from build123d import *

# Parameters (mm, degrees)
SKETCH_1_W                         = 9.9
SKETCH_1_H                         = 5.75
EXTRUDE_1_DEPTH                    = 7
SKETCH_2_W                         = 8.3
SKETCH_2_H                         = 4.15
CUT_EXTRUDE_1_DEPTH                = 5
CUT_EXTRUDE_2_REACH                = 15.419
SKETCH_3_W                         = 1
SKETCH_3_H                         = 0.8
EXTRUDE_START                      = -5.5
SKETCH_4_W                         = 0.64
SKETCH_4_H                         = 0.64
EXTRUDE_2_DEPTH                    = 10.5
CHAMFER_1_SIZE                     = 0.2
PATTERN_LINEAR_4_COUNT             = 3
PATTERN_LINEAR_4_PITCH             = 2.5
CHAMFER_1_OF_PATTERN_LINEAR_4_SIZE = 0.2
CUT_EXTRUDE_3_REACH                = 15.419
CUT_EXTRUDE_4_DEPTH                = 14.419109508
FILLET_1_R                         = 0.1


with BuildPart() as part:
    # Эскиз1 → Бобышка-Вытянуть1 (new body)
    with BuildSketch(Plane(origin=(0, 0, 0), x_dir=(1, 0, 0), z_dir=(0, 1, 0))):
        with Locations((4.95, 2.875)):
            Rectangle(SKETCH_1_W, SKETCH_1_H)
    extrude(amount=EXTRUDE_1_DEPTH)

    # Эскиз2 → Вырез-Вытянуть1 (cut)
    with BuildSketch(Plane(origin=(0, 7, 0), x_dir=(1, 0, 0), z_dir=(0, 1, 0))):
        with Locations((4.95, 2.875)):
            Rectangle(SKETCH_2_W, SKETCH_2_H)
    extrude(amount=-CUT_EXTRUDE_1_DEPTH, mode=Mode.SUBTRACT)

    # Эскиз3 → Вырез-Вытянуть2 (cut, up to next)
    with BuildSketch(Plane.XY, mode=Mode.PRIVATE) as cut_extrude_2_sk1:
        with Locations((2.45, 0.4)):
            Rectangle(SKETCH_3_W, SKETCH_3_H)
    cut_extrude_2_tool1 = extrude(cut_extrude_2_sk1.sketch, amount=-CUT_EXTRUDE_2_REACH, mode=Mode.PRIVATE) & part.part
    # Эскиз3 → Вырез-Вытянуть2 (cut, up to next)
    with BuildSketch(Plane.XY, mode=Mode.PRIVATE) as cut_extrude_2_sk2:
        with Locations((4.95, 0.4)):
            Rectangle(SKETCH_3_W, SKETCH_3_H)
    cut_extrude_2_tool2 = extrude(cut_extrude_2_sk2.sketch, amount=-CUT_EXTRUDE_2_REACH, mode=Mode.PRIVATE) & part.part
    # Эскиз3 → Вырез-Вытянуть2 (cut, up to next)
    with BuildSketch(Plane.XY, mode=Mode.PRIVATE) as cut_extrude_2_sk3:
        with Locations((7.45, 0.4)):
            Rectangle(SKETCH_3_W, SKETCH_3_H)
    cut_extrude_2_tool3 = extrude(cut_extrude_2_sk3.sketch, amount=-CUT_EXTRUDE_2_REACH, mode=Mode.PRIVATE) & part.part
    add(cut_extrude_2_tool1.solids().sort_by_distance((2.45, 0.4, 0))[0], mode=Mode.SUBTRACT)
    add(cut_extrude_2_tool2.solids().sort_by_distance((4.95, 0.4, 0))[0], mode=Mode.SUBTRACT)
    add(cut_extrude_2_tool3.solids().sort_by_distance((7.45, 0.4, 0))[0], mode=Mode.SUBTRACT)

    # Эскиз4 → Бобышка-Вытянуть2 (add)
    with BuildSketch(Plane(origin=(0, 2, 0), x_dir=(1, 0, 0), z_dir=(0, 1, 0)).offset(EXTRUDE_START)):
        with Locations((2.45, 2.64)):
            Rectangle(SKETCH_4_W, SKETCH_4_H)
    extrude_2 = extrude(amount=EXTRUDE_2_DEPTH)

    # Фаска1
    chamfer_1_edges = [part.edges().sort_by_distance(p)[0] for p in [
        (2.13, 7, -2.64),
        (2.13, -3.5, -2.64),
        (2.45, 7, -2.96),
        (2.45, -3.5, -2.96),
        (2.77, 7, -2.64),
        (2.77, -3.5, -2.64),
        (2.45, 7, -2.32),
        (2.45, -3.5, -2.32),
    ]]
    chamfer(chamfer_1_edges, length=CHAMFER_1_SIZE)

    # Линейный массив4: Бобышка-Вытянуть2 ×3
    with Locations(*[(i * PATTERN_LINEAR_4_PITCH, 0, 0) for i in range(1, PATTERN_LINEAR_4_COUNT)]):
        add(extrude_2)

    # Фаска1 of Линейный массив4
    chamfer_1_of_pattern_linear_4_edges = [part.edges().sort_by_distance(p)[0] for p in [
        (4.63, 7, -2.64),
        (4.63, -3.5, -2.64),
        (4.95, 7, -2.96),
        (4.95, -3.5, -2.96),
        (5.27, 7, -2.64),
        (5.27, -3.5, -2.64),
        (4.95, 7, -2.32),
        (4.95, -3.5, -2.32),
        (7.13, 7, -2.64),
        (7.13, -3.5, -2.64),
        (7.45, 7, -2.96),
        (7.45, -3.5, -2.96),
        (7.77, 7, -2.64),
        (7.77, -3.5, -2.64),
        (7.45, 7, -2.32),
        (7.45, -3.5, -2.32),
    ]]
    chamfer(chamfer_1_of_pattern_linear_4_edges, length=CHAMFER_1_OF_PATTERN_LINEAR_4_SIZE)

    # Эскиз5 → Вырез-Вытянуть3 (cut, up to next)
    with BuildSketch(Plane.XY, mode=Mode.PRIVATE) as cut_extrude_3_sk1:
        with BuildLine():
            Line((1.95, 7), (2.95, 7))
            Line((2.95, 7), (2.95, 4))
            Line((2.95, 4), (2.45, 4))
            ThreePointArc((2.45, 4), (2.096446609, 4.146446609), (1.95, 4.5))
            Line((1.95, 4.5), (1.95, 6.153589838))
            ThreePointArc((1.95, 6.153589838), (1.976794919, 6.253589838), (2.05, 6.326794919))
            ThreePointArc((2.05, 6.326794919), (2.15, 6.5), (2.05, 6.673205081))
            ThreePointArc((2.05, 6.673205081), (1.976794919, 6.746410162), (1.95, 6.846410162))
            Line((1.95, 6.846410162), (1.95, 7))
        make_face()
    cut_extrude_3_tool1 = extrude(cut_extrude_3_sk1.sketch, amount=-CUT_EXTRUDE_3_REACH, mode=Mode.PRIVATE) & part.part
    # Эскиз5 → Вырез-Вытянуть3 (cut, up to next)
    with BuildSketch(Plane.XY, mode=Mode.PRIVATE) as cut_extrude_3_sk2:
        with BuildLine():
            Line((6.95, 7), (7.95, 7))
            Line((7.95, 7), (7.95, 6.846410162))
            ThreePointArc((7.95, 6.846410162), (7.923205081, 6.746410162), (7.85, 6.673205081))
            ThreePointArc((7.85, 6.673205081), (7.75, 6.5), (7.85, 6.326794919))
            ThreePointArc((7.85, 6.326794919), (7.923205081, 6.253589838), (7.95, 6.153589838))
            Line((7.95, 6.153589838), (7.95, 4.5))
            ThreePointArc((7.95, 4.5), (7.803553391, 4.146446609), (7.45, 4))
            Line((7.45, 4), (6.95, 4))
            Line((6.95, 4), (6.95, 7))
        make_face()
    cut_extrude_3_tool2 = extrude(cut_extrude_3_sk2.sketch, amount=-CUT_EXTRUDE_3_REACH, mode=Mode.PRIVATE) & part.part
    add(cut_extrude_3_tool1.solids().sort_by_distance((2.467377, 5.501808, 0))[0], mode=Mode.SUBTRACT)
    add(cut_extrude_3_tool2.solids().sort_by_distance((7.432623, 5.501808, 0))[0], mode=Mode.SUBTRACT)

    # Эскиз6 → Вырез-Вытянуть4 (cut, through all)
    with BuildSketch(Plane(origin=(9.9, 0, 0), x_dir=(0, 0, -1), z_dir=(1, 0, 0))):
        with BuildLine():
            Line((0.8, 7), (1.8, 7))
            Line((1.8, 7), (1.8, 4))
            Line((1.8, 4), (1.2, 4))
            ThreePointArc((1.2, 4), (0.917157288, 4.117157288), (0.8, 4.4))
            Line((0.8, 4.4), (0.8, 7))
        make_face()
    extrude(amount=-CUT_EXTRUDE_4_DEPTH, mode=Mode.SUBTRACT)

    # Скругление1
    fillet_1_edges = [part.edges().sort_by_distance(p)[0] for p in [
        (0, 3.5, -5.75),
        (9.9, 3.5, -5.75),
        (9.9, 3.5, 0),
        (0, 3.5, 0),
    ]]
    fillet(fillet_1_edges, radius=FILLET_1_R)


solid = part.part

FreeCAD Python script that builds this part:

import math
import FreeCAD as App
import Part
import Sketcher
from FreeCAD import Vector
Q = App.Units.Quantity


def edges_at(feature, points):
    """Names of the edges that pass closest to the given points."""
    edges = feature.Shape.Edges
    near = lambda p: min(range(len(edges)), key=lambda i: edges[i].distToShape(Part.Vertex(*p))[0])
    return sorted({f"Edge{near(p) + 1}" for p in points})

doc = App.newDocument("Part")
body = doc.addObject("PartDesign::Body", "Body")

sketch1 = doc.addObject("Sketcher::SketchObject", "Sketch")
body.addObject(sketch1)
sketch1.AttachmentSupport = (doc.XZ_Plane, [""])
sketch1.MapMode = "FlatFace"
sketch1.addGeometry(Part.LineSegment(Vector(0, -6, 0), Vector(0, 0, 0)), False)
sketch1.addGeometry(Part.LineSegment(Vector(0, 0, 0), Vector(10, 0, 0)), False)
sketch1.addGeometry(Part.LineSegment(Vector(10, 0, 0), Vector(10, -6, 0)), False)
sketch1.addGeometry(Part.LineSegment(Vector(10, -6, 0), Vector(0, -6, 0)), False)
sketch1.addConstraint(Sketcher.Constraint("Coincident", 0, 2, 1, 1))
sketch1.addConstraint(Sketcher.Constraint("Coincident", 1, 2, 2, 1))
sketch1.addConstraint(Sketcher.Constraint("Coincident", 2, 2, 3, 1))
sketch1.addConstraint(Sketcher.Constraint("Coincident", 3, 2, 0, 1))
sketch1.addConstraint(Sketcher.Constraint("Vertical", 0))
sketch1.addConstraint(Sketcher.Constraint("Horizontal", 1))
sketch1.addConstraint(Sketcher.Constraint("Vertical", 2))
sketch1.addConstraint(Sketcher.Constraint("Horizontal", 3))
sketch1.addConstraint(Sketcher.Constraint("Coincident", 0, 2, -1, 1))
sketch1.addConstraint(Sketcher.Constraint("DistanceX", 1, 1, 1, 2, Q("9.9 mm")))
sketch1.addConstraint(Sketcher.Constraint("DistanceY", 0, 1, 0, 2, Q("5.75 mm")))
pad1 = doc.addObject("PartDesign::Pad", "Pad")
body.addObject(pad1)
pad1.Profile = sketch1
pad1.Length = 7
pad1.Reversed = True

sketch2 = doc.addObject("Sketcher::SketchObject", "Sketch001")
body.addObject(sketch2)
sketch2.AttachmentSupport = (doc.XZ_Plane, [""])
sketch2.MapMode = "FlatFace"
sketch2.AttachmentOffset = App.Placement(Vector(0, 0, -7), App.Rotation())
sketch2.addGeometry(Part.LineSegment(Vector(0.8, -5, 0), Vector(0.8, -0.8, 0)), False)
sketch2.addGeometry(Part.LineSegment(Vector(0.8, -0.8, 0), Vector(9.1, -0.8, 0)), False)
sketch2.addGeometry(Part.LineSegment(Vector(9.1, -0.8, 0), Vector(9.1, -5, 0)), False)
sketch2.addGeometry(Part.LineSegment(Vector(9.1, -5, 0), Vector(0.8, -5, 0)), False)
sketch2.addConstraint(Sketcher.Constraint("Coincident", 0, 2, 1, 1))
sketch2.addConstraint(Sketcher.Constraint("Coincident", 1, 2, 2, 1))
sketch2.addConstraint(Sketcher.Constraint("Coincident", 2, 2, 3, 1))
sketch2.addConstraint(Sketcher.Constraint("Coincident", 3, 2, 0, 1))
sketch2.addConstraint(Sketcher.Constraint("Vertical", 0))
sketch2.addConstraint(Sketcher.Constraint("Horizontal", 1))
sketch2.addConstraint(Sketcher.Constraint("Vertical", 2))
sketch2.addConstraint(Sketcher.Constraint("Horizontal", 3))
sketch2.addConstraint(Sketcher.Constraint("DistanceX", 1, 1, 1, 2, Q("8.3 mm")))
sketch2.addConstraint(Sketcher.Constraint("DistanceY", 0, 1, 0, 2, Q("4.15 mm")))
sketch2.addConstraint(Sketcher.Constraint("DistanceX", -1, 1, 0, 2, Q("0.8 mm")))
sketch2.addConstraint(Sketcher.Constraint("DistanceY", 0, 2, -1, 1, Q("0.8 mm")))
pocket1 = doc.addObject("PartDesign::Pocket", "Pocket")
body.addObject(pocket1)
pocket1.Profile = sketch2
pocket1.Length = 5
pocket1.Reversed = True

sketch3 = doc.addObject("Sketcher::SketchObject", "Sketch002")
body.addObject(sketch3)
sketch3.AttachmentSupport = (doc.XY_Plane, [""])
sketch3.MapMode = "FlatFace"
sketch3.addGeometry(Part.LineSegment(Vector(1.9, 0.8, 0), Vector(1.9, 0, 0)), False)
sketch3.addGeometry(Part.LineSegment(Vector(1.9, 0, 0), Vector(3, 0, 0)), False)
sketch3.addGeometry(Part.LineSegment(Vector(3, 0, 0), Vector(3, 0.8, 0)), False)
sketch3.addGeometry(Part.LineSegment(Vector(3, 0.8, 0), Vector(1.9, 0.8, 0)), False)
sketch3.addConstraint(Sketcher.Constraint("Coincident", 0, 2, 1, 1))
sketch3.addConstraint(Sketcher.Constraint("Coincident", 1, 2, 2, 1))
sketch3.addConstraint(Sketcher.Constraint("Coincident", 2, 2, 3, 1))
sketch3.addConstraint(Sketcher.Constraint("Coincident", 3, 2, 0, 1))
sketch3.addConstraint(Sketcher.Constraint("Vertical", 0))
sketch3.addConstraint(Sketcher.Constraint("Horizontal", 1))
sketch3.addConstraint(Sketcher.Constraint("Vertical", 2))
sketch3.addConstraint(Sketcher.Constraint("Horizontal", 3))
sketch3.addConstraint(Sketcher.Constraint("PointOnObject", 0, 2, -1))
sketch3.addConstraint(Sketcher.Constraint("DistanceX", 1, 1, 1, 2, Q("1 mm")))
sketch3.addConstraint(Sketcher.Constraint("DistanceY", 0, 2, 0, 1, Q("0.8 mm")))
sketch3.addConstraint(Sketcher.Constraint("DistanceX", -1, 1, 0, 2, Q("1.95 mm")))
pocket2 = doc.addObject("PartDesign::Pocket", "Pocket001")
body.addObject(pocket2)
pocket2.Profile = sketch3
pocket2.Type = "UpToFirst"

sketch4 = doc.addObject("Sketcher::SketchObject", "Sketch003")
body.addObject(sketch4)
sketch4.AttachmentSupport = (doc.XY_Plane, [""])
sketch4.MapMode = "FlatFace"
sketch4.addGeometry(Part.LineSegment(Vector(4.5, 0.8, 0), Vector(4.5, 0, 0)), False)
sketch4.addGeometry(Part.LineSegment(Vector(4.5, 0, 0), Vector(5.5, 0, 0)), False)
sketch4.addGeometry(Part.LineSegment(Vector(5.5, 0, 0), Vector(5.5, 0.8, 0)), False)
sketch4.addGeometry(Part.LineSegment(Vector(5.5, 0.8, 0), Vector(4.5, 0.8, 0)), False)
sketch4.addConstraint(Sketcher.Constraint("Coincident", 0, 2, 1, 1))
sketch4.addConstraint(Sketcher.Constraint("Coincident", 1, 2, 2, 1))
sketch4.addConstraint(Sketcher.Constraint("Coincident", 2, 2, 3, 1))
sketch4.addConstraint(Sketcher.Constraint("Coincident", 3, 2, 0, 1))
sketch4.addConstraint(Sketcher.Constraint("Vertical", 0))
sketch4.addConstraint(Sketcher.Constraint("Horizontal", 1))
sketch4.addConstraint(Sketcher.Constraint("Vertical", 2))
sketch4.addConstraint(Sketcher.Constraint("Horizontal", 3))
sketch4.addConstraint(Sketcher.Constraint("PointOnObject", 0, 2, -1))
sketch4.addConstraint(Sketcher.Constraint("DistanceX", 1, 1, 1, 2, Q("1 mm")))
sketch4.addConstraint(Sketcher.Constraint("DistanceY", 0, 2, 0, 1, Q("0.8 mm")))
sketch4.addConstraint(Sketcher.Constraint("DistanceX", -1, 1, 0, 2, Q("4.45 mm")))
pocket3 = doc.addObject("PartDesign::Pocket", "Pocket002")
body.addObject(pocket3)
pocket3.Profile = sketch4
pocket3.Type = "UpToFirst"

sketch5 = doc.addObject("Sketcher::SketchObject", "Sketch004")
body.addObject(sketch5)
sketch5.AttachmentSupport = (doc.XY_Plane, [""])
sketch5.MapMode = "FlatFace"
sketch5.addGeometry(Part.LineSegment(Vector(7, 0.8, 0), Vector(7, 0, 0)), False)
sketch5.addGeometry(Part.LineSegment(Vector(7, 0, 0), Vector(8, 0, 0)), False)
sketch5.addGeometry(Part.LineSegment(Vector(8, 0, 0), Vector(8, 0.8, 0)), False)
sketch5.addGeometry(Part.LineSegment(Vector(8, 0.8, 0), Vector(7, 0.8, 0)), False)
sketch5.addConstraint(Sketcher.Constraint("Coincident", 0, 2, 1, 1))
sketch5.addConstraint(Sketcher.Constraint("Coincident", 1, 2, 2, 1))
sketch5.addConstraint(Sketcher.Constraint("Coincident", 2, 2, 3, 1))
sketch5.addConstraint(Sketcher.Constraint("Coincident", 3, 2, 0, 1))
sketch5.addConstraint(Sketcher.Constraint("Vertical", 0))
sketch5.addConstraint(Sketcher.Constraint("Horizontal", 1))
sketch5.addConstraint(Sketcher.Constraint("Vertical", 2))
sketch5.addConstraint(Sketcher.Constraint("Horizontal", 3))
sketch5.addConstraint(Sketcher.Constraint("PointOnObject", 0, 2, -1))
sketch5.addConstraint(Sketcher.Constraint("DistanceX", 1, 1, 1, 2, Q("1 mm")))
sketch5.addConstraint(Sketcher.Constraint("DistanceY", 0, 2, 0, 1, Q("0.8 mm")))
sketch5.addConstraint(Sketcher.Constraint("DistanceX", -1, 1, 0, 2, Q("6.95 mm")))
pocket4 = doc.addObject("PartDesign::Pocket", "Pocket003")
body.addObject(pocket4)
pocket4.Profile = sketch5
pocket4.Type = "UpToFirst"

sketch6 = doc.addObject("Sketcher::SketchObject", "Sketch005")
body.addObject(sketch6)
sketch6.AttachmentSupport = (doc.XZ_Plane, [""])
sketch6.MapMode = "FlatFace"
sketch6.AttachmentOffset = App.Placement(Vector(0, 0, 3.5), App.Rotation())
sketch6.addGeometry(Part.LineSegment(Vector(2.1, -3, 0), Vector(2.1, -2.3, 0)), False)
sketch6.addGeometry(Part.LineSegment(Vector(2.1, -2.3, 0), Vector(2.8, -2.3, 0)), False)
sketch6.addGeometry(Part.LineSegment(Vector(2.8, -2.3, 0), Vector(2.8, -3, 0)), False)
sketch6.addGeometry(Part.LineSegment(Vector(2.8, -3, 0), Vector(2.1, -3, 0)), False)
sketch6.addConstraint(Sketcher.Constraint("Coincident", 0, 2, 1, 1))
sketch6.addConstraint(Sketcher.Constraint("Coincident", 1, 2, 2, 1))
sketch6.addConstraint(Sketcher.Constraint("Coincident", 2, 2, 3, 1))
sketch6.addConstraint(Sketcher.Constraint("Coincident", 3, 2, 0, 1))
sketch6.addConstraint(Sketcher.Constraint("Vertical", 0))
sketch6.addConstraint(Sketcher.Constraint("Horizontal", 1))
sketch6.addConstraint(Sketcher.Constraint("Vertical", 2))
sketch6.addConstraint(Sketcher.Constraint("Horizontal", 3))
sketch6.addConstraint(Sketcher.Constraint("Equal", 3, 0))
sketch6.addConstraint(Sketcher.Constraint("DistanceX", 1, 1, 1, 2, Q("0.64 mm")))
sketch6.addConstraint(Sketcher.Constraint("DistanceX", -1, 1, 0, 2, Q("2.13 mm")))
sketch6.addConstraint(Sketcher.Constraint("DistanceY", 0, 2, -1, 1, Q("2.32 mm")))
pad2 = doc.addObject("PartDesign::Pad", "Pad001")
body.addObject(pad2)
pad2.Profile = sketch6
pad2.Length = 10.5
pad2.Reversed = True
doc.recompute()

chamfer = doc.addObject("PartDesign::Chamfer", "Chamfer")
body.addObject(chamfer)
chamfer.Base = (pad2, edges_at(pad2, [
    (2.13, 7, -2.64),
    (2.13, -3.5, -2.64),
    (2.45, 7, -2.96),
    (2.45, -3.5, -2.96),
    (2.77, 7, -2.64),
    (2.77, -3.5, -2.64),
    (2.45, 7, -2.32),
    (2.45, -3.5, -2.32),
]))
chamfer.Size = 0.2
doc.recompute()

linearpattern = doc.addObject("PartDesign::LinearPattern", "LinearPattern")
body.addObject(linearpattern)
linearpattern.Originals = [pad2]
linearpattern.Direction = (doc.X_Axis, [""])
linearpattern.Mode = "offset"
linearpattern.Offset = 2.5
linearpattern.Occurrences = 3
body.Tip = linearpattern
doc.recompute()

chamfer2 = doc.addObject("PartDesign::Chamfer", "Chamfer001")
body.addObject(chamfer2)
chamfer2.Base = (linearpattern, edges_at(linearpattern, [
    (4.63, 7, -2.64),
    (4.63, -3.5, -2.64),
    (4.95, 7, -2.96),
    (4.95, -3.5, -2.96),
    (5.27, 7, -2.64),
    (5.27, -3.5, -2.64),
    (4.95, 7, -2.32),
    (4.95, -3.5, -2.32),
    (7.13, 7, -2.64),
    (7.13, -3.5, -2.64),
    (7.45, 7, -2.96),
    (7.45, -3.5, -2.96),
    (7.77, 7, -2.64),
    (7.77, -3.5, -2.64),
    (7.45, 7, -2.32),
    (7.45, -3.5, -2.32),
]))
chamfer2.Size = 0.2

sketch7 = doc.addObject("Sketcher::SketchObject", "Sketch006")
body.addObject(sketch7)
sketch7.AttachmentSupport = (doc.XY_Plane, [""])
sketch7.MapMode = "FlatFace"
sketch7.addGeometry(Part.LineSegment(Vector(2.95, 7, 0), Vector(1.95, 7, 0)), False)
sketch7.addGeometry(Part.LineSegment(Vector(1.95, 7, 0), Vector(1.95, 6.85, 0)), False)
sketch7.addGeometry(Part.ArcOfCircle(Part.Circle(Vector(2.15, 6.85, 0), Vector(0, 0, 1), 0.2), math.radians(180), math.radians(240)), False)
sketch7.addGeometry(Part.ArcOfCircle(Part.Circle(Vector(1.95, 6.5, 0), Vector(0, 0, 1), 0.2), math.radians(-60), math.radians(60)), False)
sketch7.addGeometry(Part.ArcOfCircle(Part.Circle(Vector(2.15, 6.15, 0), Vector(0, 0, 1), 0.2), math.radians(120), math.radians(180)), False)
sketch7.addGeometry(Part.LineSegment(Vector(1.95, 6.15, 0), Vector(1.95, 4.5, 0)), False)
sketch7.addGeometry(Part.ArcOfCircle(Part.Circle(Vector(2.45, 4.5, 0), Vector(0, 0, 1), 0.5), math.radians(180), math.radians(270)), False)
sketch7.addGeometry(Part.LineSegment(Vector(2.45, 4, 0), Vector(2.95, 4, 0)), False)
sketch7.addGeometry(Part.LineSegment(Vector(2.95, 4, 0), Vector(2.95, 7, 0)), False)
sketch7.addConstraint(Sketcher.Constraint("Coincident", 0, 2, 1, 1))
sketch7.addConstraint(Sketcher.Constraint("Tangent", 1, 2, 2, 1))
sketch7.addConstraint(Sketcher.Constraint("Tangent", 2, 2, 3, 2))
sketch7.addConstraint(Sketcher.Constraint("Tangent", 3, 1, 4, 1))
sketch7.addConstraint(Sketcher.Constraint("Tangent", 4, 2, 5, 1))
sketch7.addConstraint(Sketcher.Constraint("Tangent", 5, 2, 6, 1))
sketch7.addConstraint(Sketcher.Constraint("Tangent", 6, 2, 7, 1))
sketch7.addConstraint(Sketcher.Constraint("Coincident", 7, 2, 8, 1))
sketch7.addConstraint(Sketcher.Constraint("Coincident", 8, 2, 0, 1))
sketch7.addConstraint(Sketcher.Constraint("Horizontal", 0))
sketch7.addConstraint(Sketcher.Constraint("Vertical", 1))
sketch7.addConstraint(Sketcher.Constraint("Vertical", 5))
sketch7.addConstraint(Sketcher.Constraint("Horizontal", 7))
sketch7.addConstraint(Sketcher.Constraint("Vertical", 8))
sketch7.addConstraint(Sketcher.Constraint("Equal", 2, 3))
sketch7.addConstraint(Sketcher.Constraint("Equal", 3, 4))
sketch7.addConstraint(Sketcher.Constraint("Vertical", 2, 3, 4, 3))
sketch7.addConstraint(Sketcher.Constraint("Vertical", 3, 3, 0, 2))
sketch7.addConstraint(Sketcher.Constraint("Radius", 2, Q("0.2 mm")))
sketch7.addConstraint(Sketcher.Constraint("Radius", 6, Q("0.5 mm")))
sketch7.addConstraint(Sketcher.Constraint("DistanceX", 0, 2, 0, 1, Q("1 mm")))
sketch7.addConstraint(Sketcher.Constraint("DistanceY", 8, 1, 8, 2, Q("3 mm")))
sketch7.addConstraint(Sketcher.Constraint("DistanceY", -1, 1, 0, 2, Q("7 mm")))
sketch7.addConstraint(Sketcher.Constraint("DistanceY", 6, 3, 3, 3, Q("2 mm")))
sketch7.addConstraint(Sketcher.Constraint("DistanceX", -1, 1, 2, 3, Q("2.15 mm")))
pocket5 = doc.addObject("PartDesign::Pocket", "Pocket004")
body.addObject(pocket5)
pocket5.Profile = sketch7
pocket5.Type = "UpToFirst"

sketch8 = doc.addObject("Sketcher::SketchObject", "Sketch007")
body.addObject(sketch8)
sketch8.AttachmentSupport = (doc.XY_Plane, [""])
sketch8.MapMode = "FlatFace"
sketch8.addGeometry(Part.LineSegment(Vector(7.95, 7, 0), Vector(6.95, 7, 0)), False)
sketch8.addGeometry(Part.LineSegment(Vector(6.95, 7, 0), Vector(6.95, 4, 0)), False)
sketch8.addGeometry(Part.LineSegment(Vector(6.95, 4, 0), Vector(7.45, 4, 0)), False)
sketch8.addGeometry(Part.ArcOfCircle(Part.Circle(Vector(7.45, 4.5, 0), Vector(0, 0, 1), 0.5), math.radians(-90), math.radians(0)), False)
sketch8.addGeometry(Part.LineSegment(Vector(7.95, 4.5, 0), Vector(7.95, 6.15, 0)), False)
sketch8.addGeometry(Part.ArcOfCircle(Part.Circle(Vector(7.75, 6.15, 0), Vector(0, 0, 1), 0.2), math.radians(0), math.radians(60)), False)
sketch8.addGeometry(Part.ArcOfCircle(Part.Circle(Vector(7.95, 6.5, 0), Vector(0, 0, 1), 0.2), math.radians(120), math.radians(240)), False)
sketch8.addGeometry(Part.ArcOfCircle(Part.Circle(Vector(7.75, 6.85, 0), Vector(0, 0, 1), 0.2), math.radians(-60), math.radians(0)), False)
sketch8.addGeometry(Part.LineSegment(Vector(7.95, 6.85, 0), Vector(7.95, 7, 0)), False)
sketch8.addConstraint(Sketcher.Constraint("Coincident", 0, 2, 1, 1))
sketch8.addConstraint(Sketcher.Constraint("Coincident", 1, 2, 2, 1))
sketch8.addConstraint(Sketcher.Constraint("Tangent", 2, 2, 3, 1))
sketch8.addConstraint(Sketcher.Constraint("Tangent", 3, 2, 4, 1))
sketch8.addConstraint(Sketcher.Constraint("Tangent", 4, 2, 5, 1))
sketch8.addConstraint(Sketcher.Constraint("Tangent", 5, 2, 6, 2))
sketch8.addConstraint(Sketcher.Constraint("Tangent", 6, 1, 7, 1))
sketch8.addConstraint(Sketcher.Constraint("Tangent", 7, 2, 8, 1))
sketch8.addConstraint(Sketcher.Constraint("Coincident", 8, 2, 0, 1))
sketch8.addConstraint(Sketcher.Constraint("Horizontal", 0))
sketch8.addConstraint(Sketcher.Constraint("Vertical", 1))
sketch8.addConstraint(Sketcher.Constraint("Horizontal", 2))
sketch8.addConstraint(Sketcher.Constraint("Vertical", 4))
sketch8.addConstraint(Sketcher.Constraint("Vertical", 8))
sketch8.addConstraint(Sketcher.Constraint("Equal", 5, 6))
sketch8.addConstraint(Sketcher.Constraint("Equal", 6, 7))
sketch8.addConstraint(Sketcher.Constraint("Vertical", 5, 3, 7, 3))
sketch8.addConstraint(Sketcher.Constraint("Vertical", 6, 3, 3, 2))
sketch8.addConstraint(Sketcher.Constraint("Radius", 3, Q("0.5 mm")))
sketch8.addConstraint(Sketcher.Constraint("Radius", 5, Q("0.2 mm")))
sketch8.addConstraint(Sketcher.Constraint("DistanceX", 0, 2, 0, 1, Q("1 mm")))
sketch8.addConstraint(Sketcher.Constraint("DistanceY", 1, 2, 1, 1, Q("3 mm")))
sketch8.addConstraint(Sketcher.Constraint("DistanceY", -1, 1, 0, 2, Q("7 mm")))
sketch8.addConstraint(Sketcher.Constraint("DistanceY", 3, 3, 6, 3, Q("2 mm")))
sketch8.addConstraint(Sketcher.Constraint("DistanceX", -1, 1, 3, 3, Q("7.45 mm")))
pocket6 = doc.addObject("PartDesign::Pocket", "Pocket005")
body.addObject(pocket6)
pocket6.Profile = sketch8
pocket6.Type = "UpToFirst"

sketch9 = doc.addObject("Sketcher::SketchObject", "Sketch008")
body.addObject(sketch9)
sketch9.AttachmentSupport = (doc.YZ_Plane, [""])
sketch9.MapMode = "FlatFace"
sketch9.AttachmentOffset = App.Placement(Vector(0, 0, 9.9), App.Rotation())
sketch9.addGeometry(Part.LineSegment(Vector(7, -1.8, 0), Vector(7, -0.8, 0)), False)
sketch9.addGeometry(Part.LineSegment(Vector(7, -0.8, 0), Vector(4.4, -0.8, 0)), False)
sketch9.addGeometry(Part.ArcOfCircle(Part.Circle(Vector(4.4, -1.2, 0), Vector(0, 0, 1), 0.4), math.radians(90), math.radians(180)), False)
sketch9.addGeometry(Part.LineSegment(Vector(4, -1.2, 0), Vector(4, -1.8, 0)), False)
sketch9.addGeometry(Part.LineSegment(Vector(4, -1.8, 0), Vector(7, -1.8, 0)), False)
sketch9.addConstraint(Sketcher.Constraint("Coincident", 0, 2, 1, 1))
sketch9.addConstraint(Sketcher.Constraint("Tangent", 1, 2, 2, 1))
sketch9.addConstraint(Sketcher.Constraint("Tangent", 2, 2, 3, 1))
sketch9.addConstraint(Sketcher.Constraint("Coincident", 3, 2, 4, 1))
sketch9.addConstraint(Sketcher.Constraint("Coincident", 4, 2, 0, 1))
sketch9.addConstraint(Sketcher.Constraint("Vertical", 0))
sketch9.addConstraint(Sketcher.Constraint("Horizontal", 1))
sketch9.addConstraint(Sketcher.Constraint("Vertical", 3))
sketch9.addConstraint(Sketcher.Constraint("Horizontal", 4))
sketch9.addConstraint(Sketcher.Constraint("Radius", 2, Q("0.4 mm")))
sketch9.addConstraint(Sketcher.Constraint("DistanceX", 4, 1, 4, 2, Q("3 mm")))
sketch9.addConstraint(Sketcher.Constraint("DistanceY", 0, 1, 0, 2, Q("1 mm")))
sketch9.addConstraint(Sketcher.Constraint("DistanceX", -1, 1, 0, 2, Q("7 mm")))
sketch9.addConstraint(Sketcher.Constraint("DistanceY", 2, 3, -1, 1, Q("1.2 mm")))
pocket7 = doc.addObject("PartDesign::Pocket", "Pocket006")
body.addObject(pocket7)
pocket7.Profile = sketch9
pocket7.Type = "ThroughAll"
doc.recompute()

fillet = doc.addObject("PartDesign::Fillet", "Fillet")
body.addObject(fillet)
fillet.Base = (pocket7, edges_at(pocket7, [
    (0, 3.5, -5.75),
    (9.9, 3.5, -5.75),
    (9.9, 3.5, 0),
    (0, 3.5, 0),
]))
fillet.Radius = 0.1

doc.recompute()
